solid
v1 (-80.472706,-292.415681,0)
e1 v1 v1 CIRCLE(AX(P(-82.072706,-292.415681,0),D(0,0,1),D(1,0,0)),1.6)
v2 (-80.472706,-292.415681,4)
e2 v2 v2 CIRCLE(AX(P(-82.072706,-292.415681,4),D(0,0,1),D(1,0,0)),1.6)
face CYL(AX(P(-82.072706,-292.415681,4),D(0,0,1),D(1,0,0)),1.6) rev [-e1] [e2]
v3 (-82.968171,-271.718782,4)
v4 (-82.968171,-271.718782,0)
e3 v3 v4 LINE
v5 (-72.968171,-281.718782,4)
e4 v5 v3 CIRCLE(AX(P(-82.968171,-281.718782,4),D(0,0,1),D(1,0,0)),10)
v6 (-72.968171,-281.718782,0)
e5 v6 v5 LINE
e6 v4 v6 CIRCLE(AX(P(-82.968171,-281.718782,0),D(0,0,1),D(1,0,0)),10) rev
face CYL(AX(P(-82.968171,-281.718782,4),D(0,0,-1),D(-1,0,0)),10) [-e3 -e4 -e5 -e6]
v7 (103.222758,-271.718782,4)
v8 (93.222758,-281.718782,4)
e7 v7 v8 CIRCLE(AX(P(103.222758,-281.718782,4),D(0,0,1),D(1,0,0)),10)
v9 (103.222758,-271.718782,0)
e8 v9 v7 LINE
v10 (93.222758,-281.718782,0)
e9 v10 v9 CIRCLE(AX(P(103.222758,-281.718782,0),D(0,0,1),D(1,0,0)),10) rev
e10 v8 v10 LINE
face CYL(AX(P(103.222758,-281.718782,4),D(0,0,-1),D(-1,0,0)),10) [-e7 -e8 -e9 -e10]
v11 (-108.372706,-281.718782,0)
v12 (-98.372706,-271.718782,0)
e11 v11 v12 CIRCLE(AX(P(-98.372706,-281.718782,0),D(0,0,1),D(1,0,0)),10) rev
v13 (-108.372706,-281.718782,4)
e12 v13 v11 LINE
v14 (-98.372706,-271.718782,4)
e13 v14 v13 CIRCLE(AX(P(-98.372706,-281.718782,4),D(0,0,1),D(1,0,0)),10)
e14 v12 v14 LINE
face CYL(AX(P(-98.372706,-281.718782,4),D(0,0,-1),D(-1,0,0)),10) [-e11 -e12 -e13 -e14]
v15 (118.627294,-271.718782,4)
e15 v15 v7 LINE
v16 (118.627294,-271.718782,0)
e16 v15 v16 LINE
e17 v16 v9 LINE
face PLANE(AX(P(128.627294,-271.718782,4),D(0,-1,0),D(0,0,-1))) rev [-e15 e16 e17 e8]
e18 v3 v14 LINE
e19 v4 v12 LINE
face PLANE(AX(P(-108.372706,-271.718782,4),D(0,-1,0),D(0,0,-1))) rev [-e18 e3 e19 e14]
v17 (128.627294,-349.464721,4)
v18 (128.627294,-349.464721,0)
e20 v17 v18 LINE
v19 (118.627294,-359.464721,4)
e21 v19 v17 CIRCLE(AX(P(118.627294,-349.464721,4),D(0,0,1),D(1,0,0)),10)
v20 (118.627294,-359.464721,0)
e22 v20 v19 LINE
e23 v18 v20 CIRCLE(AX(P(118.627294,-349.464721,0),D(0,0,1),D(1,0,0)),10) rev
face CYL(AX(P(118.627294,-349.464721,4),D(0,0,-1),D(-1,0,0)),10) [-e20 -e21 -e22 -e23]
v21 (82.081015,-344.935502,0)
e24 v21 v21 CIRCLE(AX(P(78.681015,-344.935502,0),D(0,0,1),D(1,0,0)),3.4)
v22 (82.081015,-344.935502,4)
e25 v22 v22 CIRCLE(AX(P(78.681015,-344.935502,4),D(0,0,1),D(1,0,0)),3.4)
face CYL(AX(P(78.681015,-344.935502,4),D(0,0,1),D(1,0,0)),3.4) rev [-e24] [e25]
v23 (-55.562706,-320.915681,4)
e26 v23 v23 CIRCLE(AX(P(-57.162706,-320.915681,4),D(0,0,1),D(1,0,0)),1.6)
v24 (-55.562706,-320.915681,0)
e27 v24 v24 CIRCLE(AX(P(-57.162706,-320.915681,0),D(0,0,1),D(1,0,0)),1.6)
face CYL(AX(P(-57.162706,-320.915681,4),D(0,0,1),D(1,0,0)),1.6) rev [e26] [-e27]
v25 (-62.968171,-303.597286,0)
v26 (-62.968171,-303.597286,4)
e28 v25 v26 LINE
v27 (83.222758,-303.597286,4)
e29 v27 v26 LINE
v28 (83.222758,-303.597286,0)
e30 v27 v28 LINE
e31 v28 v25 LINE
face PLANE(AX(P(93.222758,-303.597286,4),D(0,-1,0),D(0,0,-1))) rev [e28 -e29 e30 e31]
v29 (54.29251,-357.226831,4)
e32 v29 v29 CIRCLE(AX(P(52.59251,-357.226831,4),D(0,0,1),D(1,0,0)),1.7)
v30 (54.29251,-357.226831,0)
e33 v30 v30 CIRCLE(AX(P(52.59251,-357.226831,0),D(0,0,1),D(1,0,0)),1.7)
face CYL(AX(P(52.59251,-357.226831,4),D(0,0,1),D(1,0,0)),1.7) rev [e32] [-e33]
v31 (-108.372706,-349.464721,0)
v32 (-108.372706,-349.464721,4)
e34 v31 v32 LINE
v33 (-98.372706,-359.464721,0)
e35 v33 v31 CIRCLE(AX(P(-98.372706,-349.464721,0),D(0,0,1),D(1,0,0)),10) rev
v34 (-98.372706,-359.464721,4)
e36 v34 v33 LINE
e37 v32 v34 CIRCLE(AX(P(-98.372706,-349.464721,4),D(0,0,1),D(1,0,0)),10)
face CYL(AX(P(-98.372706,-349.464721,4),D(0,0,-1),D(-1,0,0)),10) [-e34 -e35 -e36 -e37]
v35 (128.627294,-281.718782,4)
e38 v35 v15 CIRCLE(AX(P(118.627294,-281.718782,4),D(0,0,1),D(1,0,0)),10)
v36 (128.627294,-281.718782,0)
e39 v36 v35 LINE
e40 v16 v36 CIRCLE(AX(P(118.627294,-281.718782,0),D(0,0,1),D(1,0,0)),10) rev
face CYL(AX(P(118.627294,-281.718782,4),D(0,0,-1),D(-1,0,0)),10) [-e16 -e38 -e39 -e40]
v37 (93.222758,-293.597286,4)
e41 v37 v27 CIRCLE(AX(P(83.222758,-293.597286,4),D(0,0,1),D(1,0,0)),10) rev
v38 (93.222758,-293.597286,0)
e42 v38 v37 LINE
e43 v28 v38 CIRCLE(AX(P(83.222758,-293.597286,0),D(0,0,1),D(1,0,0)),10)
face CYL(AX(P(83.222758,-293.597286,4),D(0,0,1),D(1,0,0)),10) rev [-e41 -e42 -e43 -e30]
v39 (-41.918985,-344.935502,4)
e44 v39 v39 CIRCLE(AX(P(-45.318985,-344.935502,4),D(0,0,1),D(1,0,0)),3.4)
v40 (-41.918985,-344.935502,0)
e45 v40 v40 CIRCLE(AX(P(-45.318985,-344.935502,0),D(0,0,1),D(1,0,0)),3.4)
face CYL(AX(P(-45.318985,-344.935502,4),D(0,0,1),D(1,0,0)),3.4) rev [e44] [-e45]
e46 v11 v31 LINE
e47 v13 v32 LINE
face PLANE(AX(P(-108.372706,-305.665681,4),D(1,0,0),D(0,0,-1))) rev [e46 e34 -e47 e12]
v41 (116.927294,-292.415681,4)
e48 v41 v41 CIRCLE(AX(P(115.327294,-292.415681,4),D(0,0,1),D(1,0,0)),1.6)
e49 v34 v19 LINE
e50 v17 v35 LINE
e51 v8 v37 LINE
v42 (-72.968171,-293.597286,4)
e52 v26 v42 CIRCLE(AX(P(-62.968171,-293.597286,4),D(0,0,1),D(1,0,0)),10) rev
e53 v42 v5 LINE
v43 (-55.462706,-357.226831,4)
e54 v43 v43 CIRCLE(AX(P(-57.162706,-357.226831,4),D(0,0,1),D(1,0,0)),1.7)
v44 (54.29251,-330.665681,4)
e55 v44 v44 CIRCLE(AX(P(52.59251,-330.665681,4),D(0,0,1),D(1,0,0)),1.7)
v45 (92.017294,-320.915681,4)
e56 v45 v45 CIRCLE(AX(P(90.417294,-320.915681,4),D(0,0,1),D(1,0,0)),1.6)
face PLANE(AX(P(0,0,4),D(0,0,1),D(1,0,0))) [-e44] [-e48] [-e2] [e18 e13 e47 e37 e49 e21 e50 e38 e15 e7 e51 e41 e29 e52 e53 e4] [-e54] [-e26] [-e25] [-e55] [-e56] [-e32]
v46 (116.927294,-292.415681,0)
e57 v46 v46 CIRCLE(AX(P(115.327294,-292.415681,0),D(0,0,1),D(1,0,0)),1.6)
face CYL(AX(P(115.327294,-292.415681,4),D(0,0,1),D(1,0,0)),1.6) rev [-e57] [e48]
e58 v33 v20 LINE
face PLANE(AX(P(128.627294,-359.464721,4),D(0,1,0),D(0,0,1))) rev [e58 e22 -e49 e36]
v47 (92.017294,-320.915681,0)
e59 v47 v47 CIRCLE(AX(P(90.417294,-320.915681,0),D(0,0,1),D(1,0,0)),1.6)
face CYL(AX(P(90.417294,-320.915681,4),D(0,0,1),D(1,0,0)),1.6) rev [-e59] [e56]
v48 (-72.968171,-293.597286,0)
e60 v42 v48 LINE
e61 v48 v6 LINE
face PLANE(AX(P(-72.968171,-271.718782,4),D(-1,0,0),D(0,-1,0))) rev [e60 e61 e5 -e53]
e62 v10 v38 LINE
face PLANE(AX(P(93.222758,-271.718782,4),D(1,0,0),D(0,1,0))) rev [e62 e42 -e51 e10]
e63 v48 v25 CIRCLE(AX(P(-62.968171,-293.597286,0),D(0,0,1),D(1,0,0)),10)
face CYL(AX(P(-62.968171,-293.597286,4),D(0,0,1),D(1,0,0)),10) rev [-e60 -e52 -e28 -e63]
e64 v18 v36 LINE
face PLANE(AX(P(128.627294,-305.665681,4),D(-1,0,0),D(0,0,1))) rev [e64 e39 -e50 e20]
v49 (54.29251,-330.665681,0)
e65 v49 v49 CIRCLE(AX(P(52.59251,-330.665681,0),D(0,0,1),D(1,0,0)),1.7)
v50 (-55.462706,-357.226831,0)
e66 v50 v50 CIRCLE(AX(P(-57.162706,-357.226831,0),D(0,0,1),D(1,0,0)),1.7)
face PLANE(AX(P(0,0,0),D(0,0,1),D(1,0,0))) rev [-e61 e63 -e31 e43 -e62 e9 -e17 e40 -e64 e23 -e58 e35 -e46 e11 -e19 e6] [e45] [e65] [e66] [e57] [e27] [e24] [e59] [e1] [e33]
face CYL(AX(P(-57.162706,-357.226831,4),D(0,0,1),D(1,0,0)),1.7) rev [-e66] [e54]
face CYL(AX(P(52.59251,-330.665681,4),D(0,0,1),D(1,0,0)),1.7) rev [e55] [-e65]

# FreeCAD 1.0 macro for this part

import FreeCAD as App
import Part
import Sketcher
from FreeCAD import Vector


def edges_at(feature, points):
    """Names of the edges that pass closest to the given points."""
    edges = feature.Shape.Edges
    near = lambda p: min(range(len(edges)), key=lambda i: edges[i].distToShape(Part.Vertex(*p))[0])
    return sorted({f"Edge{near(p) + 1}" for p in points})


def add_polygon(sketch, points):
    """Adds a closed chain of lines whose ends are joined by coincident constraints."""
    first, n = sketch.GeometryCount, len(points)
    for a, b in zip(points, points[1:] + points[:1]):
        sketch.addGeometry(Part.LineSegment(App.Vector(*a, 0), App.Vector(*b, 0)), False)
    for i in range(n):
        sketch.addConstraint(Sketcher.Constraint("Coincident", first + i, 2, first + (i + 1) % n, 1))

doc = App.newDocument("Part")
body = doc.addObject("PartDesign::Body", "Body")

# Sketch on XY plane
sketch1 = body.newObject("Sketcher::SketchObject", "Sketch")
sketch1.AttachmentSupport = (doc.getObject("XY_Plane"), [""])
sketch1.MapMode = "FlatFace"
add_polygon(sketch1, [(129, -359), (129, -272), (93, -272), (93, -304), (-73, -304), (-73, -272), (-108, -272), (-108, -359)])  # lines 0-7
sketch1.addConstraint(Sketcher.Constraint("Vertical", 0))
sketch1.addConstraint(Sketcher.Constraint("Horizontal", 1))
sketch1.addConstraint(Sketcher.Constraint("Vertical", 2))
sketch1.addConstraint(Sketcher.Constraint("Horizontal", 3))
sketch1.addConstraint(Sketcher.Constraint("Vertical", 4))
sketch1.addConstraint(Sketcher.Constraint("Horizontal", 5))
sketch1.addConstraint(Sketcher.Constraint("Vertical", 6))
sketch1.addConstraint(Sketcher.Constraint("Horizontal", 7))
sketch1.addConstraint(Sketcher.Constraint("Horizontal", 1, 2, 4, 2))
sketch1.addConstraint(Sketcher.Constraint("Equal", 1, 5))
sketch1.addConstraint(Sketcher.Constraint("DistanceX", 7, 1, 7, 2, 237.0))
sketch1.addConstraint(Sketcher.Constraint("DistanceX", 3, 2, 3, 1, 166.190929))
sketch1.addConstraint(Sketcher.Constraint("DistanceY", 0, 1, 0, 2, 87.745938))
sketch1.addConstraint(Sketcher.Constraint("DistanceY", 2, 2, 2, 1, 31.878504))
sketch1.addConstraint(Sketcher.Constraint("DistanceX", -1, 1, 1, 2, 93.222758))
sketch1.addConstraint(Sketcher.Constraint("DistanceY", 6, 2, -1, 1, 359.464721))
pad1 = body.newObject("PartDesign::Pad", "Pad")
pad1.Profile = sketch1
pad1.Length = 4

# Sketch on XY plane
sketch2 = body.newObject("Sketcher::SketchObject", "Sketch001")
sketch2.AttachmentSupport = (doc.getObject("XY_Plane"), [""])
sketch2.MapMode = "FlatFace"
sketch2.AttachmentOffset = App.Placement(Vector(0, 0, 4), App.Rotation())
sketch2.addGeometry(Part.Circle(Vector(-82.1, -292.4, 0), Vector(0, 0, 1), 1.6), False)
sketch2.addGeometry(Part.Circle(Vector(115.3, -292.4, 0), Vector(0, 0, 1), 1.6), False)
sketch2.addGeometry(Part.Circle(Vector(90.4, -320.9, 0), Vector(0, 0, 1), 1.6), False)
sketch2.addGeometry(Part.Circle(Vector(-57.2, -320.9, 0), Vector(0, 0, 1), 1.6), False)
sketch2.addConstraint(Sketcher.Constraint("Equal", 0, 1))
sketch2.addConstraint(Sketcher.Constraint("Equal", 1, 2))
sketch2.addConstraint(Sketcher.Constraint("Equal", 2, 3))
sketch2.addConstraint(Sketcher.Constraint("Horizontal", 0, 3, 1, 3))
sketch2.addConstraint(Sketcher.Constraint("Horizontal", 2, 3, 3, 3))
sketch2.addConstraint(Sketcher.Constraint("Diameter", 0, 3.2))
sketch2.addConstraint(Sketcher.Constraint("DistanceX", 0, 3, 1, 3, 197.4))
sketch2.addConstraint(Sketcher.Constraint("DistanceY", 2, 3, 1, 3, 28.5))
sketch2.addConstraint(Sketcher.Constraint("DistanceX", 2, 3, 1, 3, 24.91))
sketch2.addConstraint(Sketcher.Constraint("DistanceX", 0, 3, 3, 3, 24.91))
sketch2.addConstraint(Sketcher.Constraint("DistanceY", 0, 3, -1, 1, 292.415681))
sketch2.addConstraint(Sketcher.Constraint("DistanceX", 0, 3, -1, 1, 82.072706))
doc.recompute()
hole = body.newObject("PartDesign::Hole", "Hole")
hole.Profile = sketch2
hole.ThreadType = "None"
hole.Diameter = 3.2
hole.DepthType = "ThroughAll"
doc.recompute()

fillet = body.newObject("PartDesign::Fillet", "Fillet")
fillet.Base = (hole, edges_at(hole, [
    (128.627, -359.465, 2),
    (-108.373, -359.465, 2),
    (-108.373, -271.719, 2),
    (-72.968, -271.719, 2),
    (-72.968, -303.597, 2),
    (93.223, -303.597, 2),
    (93.223, -271.719, 2),
    (128.627, -271.719, 2),
]))
fillet.Radius = 10

# Sketch on XY plane
sketch3 = body.newObject("Sketcher::SketchObject", "Sketch002")
sketch3.AttachmentSupport = (doc.getObject("XY_Plane"), [""])
sketch3.MapMode = "FlatFace"
sketch3.AttachmentOffset = App.Placement(Vector(0, 0, 4), App.Rotation())
sketch3.addGeometry(Part.Circle(Vector(78.7, -344.9, 0), Vector(0, 0, 1), 3.4), False)
sketch3.addGeometry(Part.Circle(Vector(-45.3, -344.9, 0), Vector(0, 0, 1), 3.4), False)
sketch3.addConstraint(Sketcher.Constraint("Equal", 0, 1))
sketch3.addConstraint(Sketcher.Constraint("Horizontal", 0, 3, 1, 3))
sketch3.addConstraint(Sketcher.Constraint("Diameter", 0, 6.8))
sketch3.addConstraint(Sketcher.Constraint("DistanceX", 1, 3, 0, 3, 124.0))
sketch3.addConstraint(Sketcher.Constraint("DistanceX", -1, 1, 0, 3, 78.681015))
sketch3.addConstraint(Sketcher.Constraint("DistanceY", 0, 3, -1, 1, 344.935502))
doc.recompute()
hole2 = body.newObject("PartDesign::Hole", "Hole001")
hole2.Profile = sketch3
hole2.ThreadType = "None"
hole2.Diameter = 6.8
hole2.DepthType = "ThroughAll"

# Sketch on XY plane
sketch4 = body.newObject("Sketcher::SketchObject", "Sketch003")
sketch4.AttachmentSupport = (doc.getObject("XY_Plane"), [""])
sketch4.MapMode = "FlatFace"
sketch4.AttachmentOffset = App.Placement(Vector(0, 0, 4), App.Rotation())
sketch4.addGeometry(Part.Circle(Vector(52.6, -330.7, 0), Vector(0, 0, 1), 1.7), False)
sketch4.addGeometry(Part.Circle(Vector(52.6, -357.2, 0), Vector(0, 0, 1), 1.7), False)
sketch4.addGeometry(Part.Circle(Vector(-57.2, -357.2, 0), Vector(0, 0, 1), 1.7), False)
sketch4.addConstraint(Sketcher.Constraint("Equal", 0, 1))
sketch4.addConstraint(Sketcher.Constraint("Equal", 1, 2))
sketch4.addConstraint(Sketcher.Constraint("Horizontal", 1, 3, 2, 3))
sketch4.addConstraint(Sketcher.Constraint("Vertical", 0, 3, 1, 3))
sketch4.addConstraint(Sketcher.Constraint("Diameter", 0, 3.4))
sketch4.addConstraint(Sketcher.Constraint("DistanceX", -1, 1, 0, 3, 52.59251))
sketch4.addConstraint(Sketcher.Constraint("DistanceY", 0, 3, -1, 1, 330.665681))
sketch4.addConstraint(Sketcher.Constraint("DistanceY", 1, 3, -1, 1, 357.226831))
sketch4.addConstraint(Sketcher.Constraint("DistanceX", 2, 3, -1, 1, 57.162706))
doc.recompute()
hole3 = body.newObject("PartDesign::Hole", "Hole002")
hole3.Profile = sketch4
hole3.ThreadType = "None"
hole3.Diameter = 3.4
hole3.DepthType = "ThroughAll"

doc.recompute()
